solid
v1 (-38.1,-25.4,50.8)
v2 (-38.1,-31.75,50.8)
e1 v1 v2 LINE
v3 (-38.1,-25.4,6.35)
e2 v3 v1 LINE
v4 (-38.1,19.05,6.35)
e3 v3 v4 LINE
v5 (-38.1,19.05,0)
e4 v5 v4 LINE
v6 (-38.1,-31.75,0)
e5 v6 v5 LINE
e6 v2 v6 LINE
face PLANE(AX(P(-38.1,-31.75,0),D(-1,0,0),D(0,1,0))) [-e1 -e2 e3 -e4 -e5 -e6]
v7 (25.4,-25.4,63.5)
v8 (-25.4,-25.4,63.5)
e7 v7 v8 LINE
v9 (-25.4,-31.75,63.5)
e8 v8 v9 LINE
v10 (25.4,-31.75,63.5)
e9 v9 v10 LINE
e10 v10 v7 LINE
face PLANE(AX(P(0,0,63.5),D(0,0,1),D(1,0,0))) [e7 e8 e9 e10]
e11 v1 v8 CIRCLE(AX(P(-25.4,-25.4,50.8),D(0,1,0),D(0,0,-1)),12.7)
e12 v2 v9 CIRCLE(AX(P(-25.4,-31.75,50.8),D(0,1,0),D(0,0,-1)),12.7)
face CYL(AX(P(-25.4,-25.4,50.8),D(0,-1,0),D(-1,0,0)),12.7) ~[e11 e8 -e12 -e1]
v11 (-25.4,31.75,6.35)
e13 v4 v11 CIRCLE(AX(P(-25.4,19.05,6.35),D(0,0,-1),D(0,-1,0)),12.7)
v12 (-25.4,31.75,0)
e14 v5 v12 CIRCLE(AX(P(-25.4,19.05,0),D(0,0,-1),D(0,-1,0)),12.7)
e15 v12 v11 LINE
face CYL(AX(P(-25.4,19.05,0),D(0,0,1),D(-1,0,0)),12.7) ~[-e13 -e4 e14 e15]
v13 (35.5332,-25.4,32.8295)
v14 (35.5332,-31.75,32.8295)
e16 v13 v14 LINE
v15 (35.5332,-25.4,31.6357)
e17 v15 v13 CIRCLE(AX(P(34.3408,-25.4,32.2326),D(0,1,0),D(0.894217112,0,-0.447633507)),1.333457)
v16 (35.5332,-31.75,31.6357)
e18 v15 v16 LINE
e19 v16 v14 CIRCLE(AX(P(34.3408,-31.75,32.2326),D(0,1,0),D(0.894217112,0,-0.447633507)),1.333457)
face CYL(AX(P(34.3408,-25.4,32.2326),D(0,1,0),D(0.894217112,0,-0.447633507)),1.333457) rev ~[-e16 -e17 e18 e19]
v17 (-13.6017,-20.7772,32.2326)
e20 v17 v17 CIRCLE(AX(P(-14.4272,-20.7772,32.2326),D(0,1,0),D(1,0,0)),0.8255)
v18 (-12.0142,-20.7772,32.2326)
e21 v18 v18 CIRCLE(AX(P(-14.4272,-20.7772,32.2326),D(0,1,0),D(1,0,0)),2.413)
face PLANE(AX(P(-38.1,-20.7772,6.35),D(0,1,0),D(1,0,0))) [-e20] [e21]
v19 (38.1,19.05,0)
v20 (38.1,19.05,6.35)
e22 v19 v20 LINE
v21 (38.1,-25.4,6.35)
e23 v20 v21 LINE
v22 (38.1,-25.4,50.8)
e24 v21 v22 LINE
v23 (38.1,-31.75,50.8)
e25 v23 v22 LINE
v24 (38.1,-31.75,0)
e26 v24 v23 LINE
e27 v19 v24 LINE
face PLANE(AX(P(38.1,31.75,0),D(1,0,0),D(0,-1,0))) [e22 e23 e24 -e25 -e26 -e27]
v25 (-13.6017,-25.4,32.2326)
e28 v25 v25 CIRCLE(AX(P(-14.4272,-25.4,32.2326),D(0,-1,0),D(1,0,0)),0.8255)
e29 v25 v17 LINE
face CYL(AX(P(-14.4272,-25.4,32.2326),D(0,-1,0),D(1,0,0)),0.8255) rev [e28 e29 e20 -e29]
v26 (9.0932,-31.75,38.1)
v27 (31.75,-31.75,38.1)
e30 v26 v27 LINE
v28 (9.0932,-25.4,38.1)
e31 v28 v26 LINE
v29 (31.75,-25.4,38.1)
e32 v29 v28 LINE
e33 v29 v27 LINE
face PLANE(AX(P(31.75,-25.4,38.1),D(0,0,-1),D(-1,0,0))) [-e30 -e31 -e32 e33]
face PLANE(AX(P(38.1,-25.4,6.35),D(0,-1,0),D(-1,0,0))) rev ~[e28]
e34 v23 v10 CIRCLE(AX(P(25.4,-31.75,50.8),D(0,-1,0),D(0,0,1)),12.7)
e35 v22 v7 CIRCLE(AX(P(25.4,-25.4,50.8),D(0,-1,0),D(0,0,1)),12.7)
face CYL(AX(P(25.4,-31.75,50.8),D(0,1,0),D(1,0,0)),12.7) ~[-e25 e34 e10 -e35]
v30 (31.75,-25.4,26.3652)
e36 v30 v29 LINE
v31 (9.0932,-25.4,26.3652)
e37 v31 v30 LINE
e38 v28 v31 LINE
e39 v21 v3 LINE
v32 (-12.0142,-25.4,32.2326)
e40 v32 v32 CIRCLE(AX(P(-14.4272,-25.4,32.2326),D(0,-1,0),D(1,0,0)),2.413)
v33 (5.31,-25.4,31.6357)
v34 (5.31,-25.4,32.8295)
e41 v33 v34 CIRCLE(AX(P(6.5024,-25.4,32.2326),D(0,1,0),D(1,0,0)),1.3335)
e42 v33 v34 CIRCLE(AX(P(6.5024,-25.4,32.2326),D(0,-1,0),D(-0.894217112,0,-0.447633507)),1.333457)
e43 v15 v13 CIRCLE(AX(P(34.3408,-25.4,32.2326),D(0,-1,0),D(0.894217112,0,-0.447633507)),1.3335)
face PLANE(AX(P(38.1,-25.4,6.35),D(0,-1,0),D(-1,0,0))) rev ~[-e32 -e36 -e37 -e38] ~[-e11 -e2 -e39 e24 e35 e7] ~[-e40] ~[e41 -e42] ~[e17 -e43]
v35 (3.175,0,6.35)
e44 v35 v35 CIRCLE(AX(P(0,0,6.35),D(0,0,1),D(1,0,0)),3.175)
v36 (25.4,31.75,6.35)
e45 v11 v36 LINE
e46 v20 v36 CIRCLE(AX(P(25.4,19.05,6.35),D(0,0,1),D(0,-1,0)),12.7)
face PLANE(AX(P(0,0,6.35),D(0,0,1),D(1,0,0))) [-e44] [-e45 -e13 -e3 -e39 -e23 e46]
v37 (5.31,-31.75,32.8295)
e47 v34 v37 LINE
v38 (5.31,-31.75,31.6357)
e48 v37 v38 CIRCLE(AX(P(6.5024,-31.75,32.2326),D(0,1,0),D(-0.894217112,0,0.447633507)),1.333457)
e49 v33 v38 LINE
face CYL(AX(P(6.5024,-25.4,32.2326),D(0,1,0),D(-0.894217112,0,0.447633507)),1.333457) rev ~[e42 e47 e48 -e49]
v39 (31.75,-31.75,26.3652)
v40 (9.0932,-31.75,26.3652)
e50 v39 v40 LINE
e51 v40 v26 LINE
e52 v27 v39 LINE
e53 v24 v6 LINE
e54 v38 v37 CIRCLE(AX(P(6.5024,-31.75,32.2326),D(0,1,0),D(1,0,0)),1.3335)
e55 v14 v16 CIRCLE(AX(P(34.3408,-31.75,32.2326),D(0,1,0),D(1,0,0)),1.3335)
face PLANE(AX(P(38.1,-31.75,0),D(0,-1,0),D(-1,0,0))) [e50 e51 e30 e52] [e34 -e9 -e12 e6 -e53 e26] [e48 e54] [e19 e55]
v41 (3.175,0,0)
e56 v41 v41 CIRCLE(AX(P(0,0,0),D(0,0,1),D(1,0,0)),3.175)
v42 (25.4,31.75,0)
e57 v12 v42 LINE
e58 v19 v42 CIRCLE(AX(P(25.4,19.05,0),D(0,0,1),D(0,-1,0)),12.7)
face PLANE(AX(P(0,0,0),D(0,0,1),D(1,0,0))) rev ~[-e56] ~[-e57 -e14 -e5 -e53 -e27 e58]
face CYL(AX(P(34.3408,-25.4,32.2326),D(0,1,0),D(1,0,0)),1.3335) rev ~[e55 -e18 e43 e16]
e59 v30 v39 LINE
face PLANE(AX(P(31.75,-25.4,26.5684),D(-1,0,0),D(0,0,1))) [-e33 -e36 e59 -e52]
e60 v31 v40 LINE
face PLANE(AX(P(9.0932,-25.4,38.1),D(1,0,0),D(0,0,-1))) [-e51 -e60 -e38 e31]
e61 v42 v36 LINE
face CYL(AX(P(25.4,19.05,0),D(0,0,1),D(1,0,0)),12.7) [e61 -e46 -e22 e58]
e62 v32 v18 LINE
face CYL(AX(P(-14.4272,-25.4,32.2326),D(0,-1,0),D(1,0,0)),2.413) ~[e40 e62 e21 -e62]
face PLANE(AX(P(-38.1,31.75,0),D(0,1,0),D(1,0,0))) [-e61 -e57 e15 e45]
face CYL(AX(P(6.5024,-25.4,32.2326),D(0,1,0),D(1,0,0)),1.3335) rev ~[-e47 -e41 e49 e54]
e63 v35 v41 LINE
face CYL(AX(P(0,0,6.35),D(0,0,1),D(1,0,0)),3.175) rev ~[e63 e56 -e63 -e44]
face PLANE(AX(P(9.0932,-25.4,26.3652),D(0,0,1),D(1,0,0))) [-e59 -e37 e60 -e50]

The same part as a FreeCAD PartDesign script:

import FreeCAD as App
import Part
import Sketcher
from FreeCAD import Vector
Q = App.Units.Quantity


def edges_at(feature, points):
    """Names of the edges that pass closest to the given points."""
    edges = feature.Shape.Edges
    near = lambda p: min(range(len(edges)), key=lambda i: edges[i].distToShape(Part.Vertex(*p))[0])
    return sorted({f"Edge{near(p) + 1}" for p in points})

doc = App.newDocument("Part")
body = doc.addObject("PartDesign::Body", "Body")

# Sketch on XY plane
sketch1 = doc.addObject("Sketcher::SketchObject", "Sketch")
body.addObject(sketch1)
sketch1.AttachmentSupport = (doc.XY_Plane, [""])
sketch1.MapMode = "FlatFace"
sketch1.addGeometry([
    Part.LineSegment(Vector(-38, -32, 0), Vector(38, -32, 0)),
    Part.LineSegment(Vector(38, -32, 0), Vector(38, 32, 0)),
    Part.LineSegment(Vector(38, 32, 0), Vector(-38, 32, 0)),
    Part.LineSegment(Vector(-38, 32, 0), Vector(-38, -32, 0)),
], False)
sketch1.addConstraint([
    Sketcher.Constraint("Coincident", 0, 2, 1, 1),
    Sketcher.Constraint("Coincident", 1, 2, 2, 1),
    Sketcher.Constraint("Coincident", 2, 2, 3, 1),
    Sketcher.Constraint("Coincident", 3, 2, 0, 1),
    Sketcher.Constraint("Horizontal", 0),
    Sketcher.Constraint("Vertical", 1),
    Sketcher.Constraint("Horizontal", 2),
    Sketcher.Constraint("Vertical", 3),
    Sketcher.Constraint("Symmetric", 0, 2, 2, 2, -1, 1),
    Sketcher.Constraint("DistanceX", 0, 1, 0, 2, Q("3 in")),
    Sketcher.Constraint("DistanceY", 1, 1, 1, 2, Q("2.5 in")),
])
pad1 = doc.addObject("PartDesign::Pad", "Pad")
body.addObject(pad1)
pad1.Profile = sketch1
pad1.Length = Q("0.25 in")

# Sketch on XY plane
sketch2 = doc.addObject("Sketcher::SketchObject", "Sketch001")
body.addObject(sketch2)
sketch2.AttachmentSupport = (doc.XY_Plane, [""])
sketch2.MapMode = "FlatFace"
sketch2.AttachmentOffset = App.Placement(Vector(0, 0, 0.25 * 25.4), App.Rotation())
sketch2.addGeometry([
    Part.LineSegment(Vector(-38, -25, 0), Vector(-38, -32, 0)),
    Part.LineSegment(Vector(-38, -32, 0), Vector(38, -32, 0)),
    Part.LineSegment(Vector(38, -32, 0), Vector(38, -25, 0)),
    Part.LineSegment(Vector(38, -25, 0), Vector(-38, -25, 0)),
], False)
sketch2.addConstraint([
    Sketcher.Constraint("Coincident", 0, 2, 1, 1),
    Sketcher.Constraint("Coincident", 1, 2, 2, 1),
    Sketcher.Constraint("Coincident", 2, 2, 3, 1),
    Sketcher.Constraint("Coincident", 3, 2, 0, 1),
    Sketcher.Constraint("Vertical", 0),
    Sketcher.Constraint("Horizontal", 1),
    Sketcher.Constraint("Vertical", 2),
    Sketcher.Constraint("Horizontal", 3),
    Sketcher.Constraint("DistanceY", 0, 2, 0, 1, Q("0.25 in")),
    Sketcher.Constraint("DistanceX", 1, 1, 1, 2, Q("3 in")),
    Sketcher.Constraint("DistanceY", 2, 2, -1, 1, Q("1 in")),
    Sketcher.Constraint("DistanceX", 0, 2, -1, 1, Q("1.5 in")),
])
pad2 = doc.addObject("PartDesign::Pad", "Pad001")
body.addObject(pad2)
pad2.Profile = sketch2
pad2.Length = Q("2.25 in")
doc.recompute()

fillet = doc.addObject("PartDesign::Fillet", "Fillet")
body.addObject(fillet)
fillet.Base = (pad2, edges_at(pad2, [
    (38.1, 31.75, 3.175),
    (-38.1, 31.75, 3.175),
    (38.1, -28.575, 63.5),
    (-38.1, -28.575, 63.5),
]))
fillet.Radius = Q("0.5 in")

# Sketch on XY plane
sketch3 = doc.addObject("Sketcher::SketchObject", "Sketch002")
body.addObject(sketch3)
sketch3.AttachmentSupport = (doc.XY_Plane, [""])
sketch3.MapMode = "FlatFace"
sketch3.AttachmentOffset = App.Placement(Vector(0, 0, 0.25 * 25.4), App.Rotation())
sketch3.addGeometry(Part.Circle(Vector(0, 0, 0), Vector(0, 0, 1), 3.2), False)
sketch3.addConstraint([
    Sketcher.Constraint("Coincident", 0, 3, -1, 1),
    Sketcher.Constraint("Diameter", 0, Q("0.25 in")),
])
pocket1 = doc.addObject("PartDesign::Pocket", "Pocket")
body.addObject(pocket1)
pocket1.Profile = sketch3
pocket1.Length = Q("1 in")

# Sketch on XZ plane
sketch4 = doc.addObject("Sketcher::SketchObject", "Sketch003")
body.addObject(sketch4)
sketch4.AttachmentSupport = (doc.XZ_Plane, [""])
sketch4.MapMode = "FlatFace"
sketch4.AttachmentOffset = App.Placement(Vector(0, 0, 1 * 25.4), App.Rotation())
sketch4.addGeometry([
    Part.LineSegment(Vector(31.8, 38.1, 0), Vector(31.8, 26.4, 0)),  # 0
    Part.LineSegment(Vector(31.8, 26.4, 0), Vector(9.1, 26.4, 0)),  # 1
    Part.LineSegment(Vector(9.1, 26.4, 0), Vector(9.1, 38.1, 0)),  # 2
    Part.LineSegment(Vector(9.1, 38.1, 0), Vector(31.8, 38.1, 0)),  # 3
    Part.Circle(Vector(34.3, 32.2, 0), Vector(0, 0, 1), 1.3),  # 4
    Part.Circle(Vector(6.5, 32.2, 0), Vector(0, 0, 1), 1.3),  # 5
], False)
sketch4.addConstraint([
    Sketcher.Constraint("Coincident", 0, 2, 1, 1),
    Sketcher.Constraint("Coincident", 1, 2, 2, 1),
    Sketcher.Constraint("Coincident", 2, 2, 3, 1),
    Sketcher.Constraint("Coincident", 3, 2, 0, 1),
    Sketcher.Constraint("Vertical", 0),
    Sketcher.Constraint("Horizontal", 1),
    Sketcher.Constraint("Vertical", 2),
    Sketcher.Constraint("Horizontal", 3),
    Sketcher.Constraint("Equal", 4, 5),
    Sketcher.Constraint("Horizontal", 4, 3, 5, 3),
    Sketcher.Constraint("DistanceX", 1, 2, 1, 1, Q("0.892 in")),
    Sketcher.Constraint("Diameter", 4, Q("0.105 in")),
    Sketcher.Constraint("DistanceY", -1, 1, 2, 2, Q("1.5 in")),
    Sketcher.Constraint("DistanceY", 0, 2, 0, 1, Q("0.462 in")),
    Sketcher.Constraint("DistanceX", -1, 1, 0, 2, Q("1.25 in")),
    Sketcher.Constraint("DistanceX", -1, 1, 4, 3, Q("1.352 in")),
    Sketcher.Constraint("DistanceY", -1, 1, 4, 3, Q("1.269 in")),
    Sketcher.Constraint("DistanceX", -1, 1, 5, 3, Q("0.256 in")),
])
pocket2 = doc.addObject("PartDesign::Pocket", "Pocket001")
body.addObject(pocket2)
pocket2.Profile = sketch4
pocket2.Length = Q("1 in")
pocket2.Reversed = True

# Sketch on XZ plane
sketch5 = doc.addObject("Sketcher::SketchObject", "Sketch004")
body.addObject(sketch5)
sketch5.AttachmentSupport = (doc.XZ_Plane, [""])
sketch5.MapMode = "FlatFace"
sketch5.AttachmentOffset = App.Placement(Vector(0, 0, 1 * 25.4), App.Rotation())
sketch5.addGeometry([
    Part.Circle(Vector(-14.4, 32.2, 0), Vector(0, 0, 1), 2.4),
    Part.Circle(Vector(-14.4, 32.2, 0), Vector(0, 0, 1), 0.8),
], False)
sketch5.addConstraint([
    Sketcher.Constraint("Coincident", 1, 3, 0, 3),
    Sketcher.Constraint("Diameter", 0, Q("0.19 in")),
    Sketcher.Constraint("Diameter", 1, Q("0.065 in")),
    Sketcher.Constraint("DistanceX", 0, 3, -1, 1, Q("0.568 in")),
    Sketcher.Constraint("DistanceY", -1, 1, 0, 3, Q("1.269 in")),
])
pad3 = doc.addObject("PartDesign::Pad", "Pad002")
body.addObject(pad3)
pad3.Profile = sketch5
pad3.Length = Q("0.182 in")
pad3.Reversed = True

doc.recompute()
